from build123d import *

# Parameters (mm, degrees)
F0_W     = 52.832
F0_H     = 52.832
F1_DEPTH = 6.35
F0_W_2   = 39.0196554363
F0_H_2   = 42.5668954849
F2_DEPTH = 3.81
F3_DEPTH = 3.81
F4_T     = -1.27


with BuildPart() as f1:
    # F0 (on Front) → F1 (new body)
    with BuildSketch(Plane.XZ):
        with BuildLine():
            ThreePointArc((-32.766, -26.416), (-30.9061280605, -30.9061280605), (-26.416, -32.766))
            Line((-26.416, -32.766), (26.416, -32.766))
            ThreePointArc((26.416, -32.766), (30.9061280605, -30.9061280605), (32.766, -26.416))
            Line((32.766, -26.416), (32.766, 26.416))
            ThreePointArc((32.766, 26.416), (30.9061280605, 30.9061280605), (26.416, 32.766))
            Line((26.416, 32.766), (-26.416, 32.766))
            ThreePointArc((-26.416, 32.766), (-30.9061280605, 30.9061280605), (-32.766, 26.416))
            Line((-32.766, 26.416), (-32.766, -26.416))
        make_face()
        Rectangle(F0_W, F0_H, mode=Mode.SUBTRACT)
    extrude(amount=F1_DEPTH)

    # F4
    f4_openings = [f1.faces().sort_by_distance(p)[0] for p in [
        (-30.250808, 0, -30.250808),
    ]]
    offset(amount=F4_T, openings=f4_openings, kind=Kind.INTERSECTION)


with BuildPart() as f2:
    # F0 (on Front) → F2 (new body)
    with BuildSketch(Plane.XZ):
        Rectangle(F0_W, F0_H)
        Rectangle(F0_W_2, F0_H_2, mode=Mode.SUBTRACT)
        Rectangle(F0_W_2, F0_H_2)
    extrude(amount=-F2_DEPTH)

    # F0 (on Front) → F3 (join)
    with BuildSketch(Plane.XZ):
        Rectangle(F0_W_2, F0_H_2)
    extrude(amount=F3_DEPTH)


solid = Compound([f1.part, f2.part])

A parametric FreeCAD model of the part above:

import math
import FreeCAD as App
import Part
import Sketcher

V = App.Vector
Q = App.Units.Quantity


def faces_at(feature, points):
    """Names of the faces that lie closest to the given points."""
    faces = feature.Shape.Faces
    near = lambda p: min(range(len(faces)), key=lambda i: faces[i].distToShape(Part.Vertex(*p))[0])
    return sorted({f"Face{near(p) + 1}" for p in points})

doc = App.newDocument("Part")
body = doc.addObject("PartDesign::Body", "Body")

# Sketch on XZ plane
sketch1 = doc.addObject("Sketcher::SketchObject", "Sketch")
body.addObject(sketch1)
sketch1.AttachmentSupport = (doc.XZ_Plane, [""])
sketch1.MapMode = "FlatFace"
sketch1.addGeometry([
    Part.ArcOfCircle(Part.Circle(V(-26, -26, 0), V(0, 0, 1), 6), math.radians(180), math.radians(270)),  # 0
    Part.LineSegment(V(-26, -33, 0), V(26, -33, 0)),  # 1
    Part.ArcOfCircle(Part.Circle(V(26, -26, 0), V(0, 0, 1), 6), math.radians(-90), math.radians(0)),  # 2
    Part.LineSegment(V(33, -26, 0), V(33, 26, 0)),  # 3
    Part.ArcOfCircle(Part.Circle(V(26, 26, 0), V(0, 0, 1), 6), math.radians(0), math.radians(90)),  # 4
    Part.LineSegment(V(26, 33, 0), V(-26, 33, 0)),  # 5
    Part.ArcOfCircle(Part.Circle(V(-26, 26, 0), V(0, 0, 1), 6), math.radians(90), math.radians(180)),  # 6
    Part.LineSegment(V(-33, 26, 0), V(-33, -26, 0)),  # 7
    Part.LineSegment(V(26, -26, 0), V(-26, -26, 0)),  # 8
    Part.LineSegment(V(-26, -26, 0), V(-26, 26, 0)),  # 9
    Part.LineSegment(V(-26, 26, 0), V(26, 26, 0)),  # 10
    Part.LineSegment(V(26, 26, 0), V(26, -26, 0)),  # 11
], False)
sketch1.addConstraint([
    Sketcher.Constraint("Tangent", 0, 2, 1, 1),
    Sketcher.Constraint("Tangent", 1, 2, 2, 1),
    Sketcher.Constraint("Tangent", 2, 2, 3, 1),
    Sketcher.Constraint("Tangent", 3, 2, 4, 1),
    Sketcher.Constraint("Tangent", 4, 2, 5, 1),
    Sketcher.Constraint("Tangent", 5, 2, 6, 1),
    Sketcher.Constraint("Tangent", 6, 2, 7, 1),
    Sketcher.Constraint("Tangent", 7, 2, 0, 1),
    Sketcher.Constraint("Coincident", 8, 2, 9, 1),
    Sketcher.Constraint("Coincident", 9, 2, 10, 1),
    Sketcher.Constraint("Coincident", 10, 2, 11, 1),
    Sketcher.Constraint("Coincident", 11, 2, 8, 1),
    Sketcher.Constraint("Horizontal", 1),
    Sketcher.Constraint("Vertical", 3),
    Sketcher.Constraint("Horizontal", 5),
    Sketcher.Constraint("Vertical", 7),
    Sketcher.Constraint("Horizontal", 8),
    Sketcher.Constraint("Vertical", 9),
    Sketcher.Constraint("Horizontal", 10),
    Sketcher.Constraint("Vertical", 11),
    Sketcher.Constraint("Coincident", 8, 2, 0, 3),
    Sketcher.Constraint("Coincident", 9, 2, 6, 3),
    Sketcher.Constraint("Coincident", 10, 2, 4, 3),
    Sketcher.Constraint("Equal", 0, 2),
    Sketcher.Constraint("Symmetric", 0, 3, 4, 3, -1, 1),
    Sketcher.Constraint("Equal", 10, 3),
    Sketcher.Constraint("Radius", 0, Q("0.25 in")),
    Sketcher.Constraint("DistanceX", 1, 1, 1, 2, Q("2.08 in")),
])
pad1 = doc.addObject("PartDesign::Pad", "Pad")
body.addObject(pad1)
pad1.Profile = sketch1
pad1.Length = Q("0.25 in")
doc.recompute()

thickness = doc.addObject("PartDesign::Thickness", "Thickness")
body.addObject(thickness)
thickness.Base = (pad1, faces_at(pad1, [(-30.8, 0, 0)]))
thickness.Value = Q("0.05 in")
thickness.Reversed = True
thickness.Join = "Intersection"
body2 = doc.addObject("PartDesign::Body", "Body001")

# Sketch on XZ plane
sketch2 = doc.addObject("Sketcher::SketchObject", "Sketch001")
body2.addObject(sketch2)
sketch2.AttachmentSupport = (doc.getObject("XZ_Plane001"), [""])
sketch2.MapMode = "FlatFace"
sketch2.addGeometry([
    Part.LineSegment(V(-26, 26, 0), V(-26, -26, 0)),
    Part.LineSegment(V(-26, -26, 0), V(26, -26, 0)),
    Part.LineSegment(V(26, -26, 0), V(26, 26, 0)),
    Part.LineSegment(V(26, 26, 0), V(-26, 26, 0)),
], False)
sketch2.addConstraint([
    Sketcher.Constraint("Coincident", 0, 2, 1, 1),
    Sketcher.Constraint("Coincident", 1, 2, 2, 1),
    Sketcher.Constraint("Coincident", 2, 2, 3, 1),
    Sketcher.Constraint("Coincident", 3, 2, 0, 1),
    Sketcher.Constraint("Vertical", 0),
    Sketcher.Constraint("Horizontal", 1),
    Sketcher.Constraint("Vertical", 2),
    Sketcher.Constraint("Horizontal", 3),
    Sketcher.Constraint("Symmetric", 0, 2, 2, 2, -1, 1),
    Sketcher.Constraint("Equal", 3, 0),
    Sketcher.Constraint("DistanceX", 1, 1, 1, 2, Q("2.08 in")),
])
pad2 = doc.addObject("PartDesign::Pad", "Pad001")
body2.addObject(pad2)
pad2.Profile = sketch2
pad2.Length = Q("0.15 in")
pad2.Reversed = True

# Sketch on XZ plane
sketch3 = doc.addObject("Sketcher::SketchObject", "Sketch002")
body2.addObject(sketch3)
sketch3.AttachmentSupport = (doc.getObject("XZ_Plane001"), [""])
sketch3.MapMode = "FlatFace"
sketch3.addGeometry([
    Part.LineSegment(V(-20, 21, 0), V(-20, -21, 0)),
    Part.LineSegment(V(-20, -21, 0), V(20, -21, 0)),
    Part.LineSegment(V(20, -21, 0), V(20, 21, 0)),
    Part.LineSegment(V(20, 21, 0), V(-20, 21, 0)),
], False)
sketch3.addConstraint([
    Sketcher.Constraint("Coincident", 0, 2, 1, 1),
    Sketcher.Constraint("Coincident", 1, 2, 2, 1),
    Sketcher.Constraint("Coincident", 2, 2, 3, 1),
    Sketcher.Constraint("Coincident", 3, 2, 0, 1),
    Sketcher.Constraint("Vertical", 0),
    Sketcher.Constraint("Horizontal", 1),
    Sketcher.Constraint("Vertical", 2),
    Sketcher.Constraint("Horizontal", 3),
    Sketcher.Constraint("Symmetric", 0, 2, 2, 2, -1, 1),
    Sketcher.Constraint("DistanceX", 1, 1, 1, 2, 39.019655),
    Sketcher.Constraint("DistanceY", 0, 2, 0, 1, 42.566895),
])
pad3 = doc.addObject("PartDesign::Pad", "Pad002")
body2.addObject(pad3)
pad3.Profile = sketch3
pad3.Length = Q("0.15 in")

doc.recompute()
